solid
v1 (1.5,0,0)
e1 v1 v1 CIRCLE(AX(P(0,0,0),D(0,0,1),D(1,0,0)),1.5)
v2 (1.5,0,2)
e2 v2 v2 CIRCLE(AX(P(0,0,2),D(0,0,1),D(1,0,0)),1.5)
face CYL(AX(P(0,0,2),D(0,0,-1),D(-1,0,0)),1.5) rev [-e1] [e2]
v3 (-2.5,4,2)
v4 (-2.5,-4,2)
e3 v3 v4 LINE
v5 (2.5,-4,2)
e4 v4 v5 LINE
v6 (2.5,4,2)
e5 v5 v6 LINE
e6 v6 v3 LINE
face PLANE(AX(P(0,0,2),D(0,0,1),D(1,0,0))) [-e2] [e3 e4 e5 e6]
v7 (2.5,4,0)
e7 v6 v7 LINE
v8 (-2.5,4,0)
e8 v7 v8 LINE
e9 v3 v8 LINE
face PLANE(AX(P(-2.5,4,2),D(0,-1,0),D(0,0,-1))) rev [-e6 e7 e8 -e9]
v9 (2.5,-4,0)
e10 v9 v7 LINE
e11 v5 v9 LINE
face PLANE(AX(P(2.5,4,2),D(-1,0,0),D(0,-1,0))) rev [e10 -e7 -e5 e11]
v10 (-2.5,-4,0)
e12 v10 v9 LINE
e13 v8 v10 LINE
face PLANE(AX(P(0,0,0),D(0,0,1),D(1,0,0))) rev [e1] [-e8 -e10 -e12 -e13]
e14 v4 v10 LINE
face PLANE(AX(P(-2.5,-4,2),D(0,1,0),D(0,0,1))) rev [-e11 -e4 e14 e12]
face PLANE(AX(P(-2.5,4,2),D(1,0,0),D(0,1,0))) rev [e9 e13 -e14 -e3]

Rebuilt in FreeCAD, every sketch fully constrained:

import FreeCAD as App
import Part
import Sketcher
from FreeCAD import Vector
Q = App.Units.Quantity


def add_polygon(sketch, points):
    """Adds a closed chain of lines whose ends are joined by coincident constraints."""
    first, n = sketch.GeometryCount, len(points)
    for a, b in zip(points, points[1:] + points[:1]):
        sketch.addGeometry(Part.LineSegment(App.Vector(*a, 0), App.Vector(*b, 0)), False)
    for i in range(n):
        sketch.addConstraint(Sketcher.Constraint("Coincident", first + i, 2, first + (i + 1) % n, 1))

doc = App.newDocument("Part")
body = doc.addObject("PartDesign::Body", "Body")

sketch1 = body.newObject("Sketcher::SketchObject", "Sketch")
sketch1.AttachmentSupport = (doc.getObject("XY_Plane"), [""])
sketch1.MapMode = "FlatFace"
add_polygon(sketch1, [(-2.5, 4), (-2.5, -4), (2.5, -4), (2.5, 4)])
sketch1.addGeometry(Part.Circle(Vector(0, 0, 0), Vector(0, 0, 1), 1.5), False)
sketch1.addConstraint([
    Sketcher.Constraint("Vertical", 0),
    Sketcher.Constraint("Horizontal", 1),
    Sketcher.Constraint("Vertical", 2),
    Sketcher.Constraint("Horizontal", 3),
    Sketcher.Constraint("Coincident", 4, 3, -1, 1),
    Sketcher.Constraint("Symmetric", 0, 2, 2, 2, -1, 1),
    Sketcher.Constraint("Diameter", 4, Q("3 mm")),
    Sketcher.Constraint("DistanceX", 1, 1, 1, 2, Q("5 mm")),
    Sketcher.Constraint("DistanceY", 0, 2, 0, 1, Q("8 mm")),
])
pad1 = body.newObject("PartDesign::Pad", "Pad")
pad1.Profile = sketch1
pad1.Length = 2

doc.recompute()
